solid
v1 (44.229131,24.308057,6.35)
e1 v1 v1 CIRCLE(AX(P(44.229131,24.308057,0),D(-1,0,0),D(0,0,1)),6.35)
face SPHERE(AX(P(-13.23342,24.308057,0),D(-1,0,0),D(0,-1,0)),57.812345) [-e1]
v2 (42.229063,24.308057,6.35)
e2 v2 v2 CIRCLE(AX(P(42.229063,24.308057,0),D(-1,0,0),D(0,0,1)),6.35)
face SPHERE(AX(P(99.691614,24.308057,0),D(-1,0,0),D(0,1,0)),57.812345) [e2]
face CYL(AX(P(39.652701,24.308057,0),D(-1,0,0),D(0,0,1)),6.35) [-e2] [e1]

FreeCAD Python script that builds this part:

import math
import FreeCAD as App
import Part
import Sketcher
from FreeCAD import Vector
Q = App.Units.Quantity

doc = App.newDocument("Part")
body = doc.addObject("PartDesign::Body", "Body")

# Sketch on XY plane
sketch1 = body.newObject("Sketcher::SketchObject", "Sketch")
sketch1.AttachmentSupport = (doc.getObject("XY_Plane"), [""])
sketch1.MapMode = "FlatFace"
sketch1.addGeometry([
    Part.LineSegment(Vector(44.2, 30.7, 0), Vector(42.2, 30.7, 0)),
    Part.ArcOfCircle(Part.Circle(Vector(99.7, 24.3, 0), Vector(0, 0, 1), 57.8), math.radians(173.69), math.radians(180)),
    Part.LineSegment(Vector(41.9, 24.3, 0), Vector(44.6, 24.3, 0)),
    Part.ArcOfCircle(Part.Circle(Vector(-13.2, 24.3, 0), Vector(0, 0, 1), 57.8), math.radians(0), math.radians(6.31)),
], False)
sketch1.addGeometry(Part.LineSegment(Vector(-13.2, 24.3, 0), Vector(99.7, 24.3, 0)), True)  # axis
sketch1.addConstraint([
    Sketcher.Constraint("Coincident", 0, 2, 1, 1),
    Sketcher.Constraint("Coincident", 1, 2, 2, 1),
    Sketcher.Constraint("Coincident", 2, 2, 3, 1),
    Sketcher.Constraint("Coincident", 3, 2, 0, 1),
    Sketcher.Constraint("Horizontal", 0),
    Sketcher.Constraint("Horizontal", 2),
    Sketcher.Constraint("Horizontal", 4),
    Sketcher.Constraint("Coincident", 4, 1, 3, 3),
    Sketcher.Constraint("Coincident", 4, 2, 1, 3),
    Sketcher.Constraint("Equal", 1, 3),
    Sketcher.Constraint("Horizontal", 3, 3, 1, 2),
    Sketcher.Constraint("DistanceY", 3, 3, 0, 2, Q("6.35 mm")),
    Sketcher.Constraint("Radius", 1, Q("57.812345 mm")),
    Sketcher.Constraint("DistanceX", 0, 2, 0, 1, Q("2.000069 mm")),
    Sketcher.Constraint("DistanceX", 3, 3, -1, 1, Q("13.23342 mm")),
    Sketcher.Constraint("DistanceY", -1, 1, 1, 3, Q("24.308057 mm")),
])
revolution = body.newObject("PartDesign::Revolution", "Revolution")
revolution.Profile = sketch1
revolution.ReferenceAxis = (sketch1, ["Axis0"])
revolution.Angle = 360

doc.recompute()
